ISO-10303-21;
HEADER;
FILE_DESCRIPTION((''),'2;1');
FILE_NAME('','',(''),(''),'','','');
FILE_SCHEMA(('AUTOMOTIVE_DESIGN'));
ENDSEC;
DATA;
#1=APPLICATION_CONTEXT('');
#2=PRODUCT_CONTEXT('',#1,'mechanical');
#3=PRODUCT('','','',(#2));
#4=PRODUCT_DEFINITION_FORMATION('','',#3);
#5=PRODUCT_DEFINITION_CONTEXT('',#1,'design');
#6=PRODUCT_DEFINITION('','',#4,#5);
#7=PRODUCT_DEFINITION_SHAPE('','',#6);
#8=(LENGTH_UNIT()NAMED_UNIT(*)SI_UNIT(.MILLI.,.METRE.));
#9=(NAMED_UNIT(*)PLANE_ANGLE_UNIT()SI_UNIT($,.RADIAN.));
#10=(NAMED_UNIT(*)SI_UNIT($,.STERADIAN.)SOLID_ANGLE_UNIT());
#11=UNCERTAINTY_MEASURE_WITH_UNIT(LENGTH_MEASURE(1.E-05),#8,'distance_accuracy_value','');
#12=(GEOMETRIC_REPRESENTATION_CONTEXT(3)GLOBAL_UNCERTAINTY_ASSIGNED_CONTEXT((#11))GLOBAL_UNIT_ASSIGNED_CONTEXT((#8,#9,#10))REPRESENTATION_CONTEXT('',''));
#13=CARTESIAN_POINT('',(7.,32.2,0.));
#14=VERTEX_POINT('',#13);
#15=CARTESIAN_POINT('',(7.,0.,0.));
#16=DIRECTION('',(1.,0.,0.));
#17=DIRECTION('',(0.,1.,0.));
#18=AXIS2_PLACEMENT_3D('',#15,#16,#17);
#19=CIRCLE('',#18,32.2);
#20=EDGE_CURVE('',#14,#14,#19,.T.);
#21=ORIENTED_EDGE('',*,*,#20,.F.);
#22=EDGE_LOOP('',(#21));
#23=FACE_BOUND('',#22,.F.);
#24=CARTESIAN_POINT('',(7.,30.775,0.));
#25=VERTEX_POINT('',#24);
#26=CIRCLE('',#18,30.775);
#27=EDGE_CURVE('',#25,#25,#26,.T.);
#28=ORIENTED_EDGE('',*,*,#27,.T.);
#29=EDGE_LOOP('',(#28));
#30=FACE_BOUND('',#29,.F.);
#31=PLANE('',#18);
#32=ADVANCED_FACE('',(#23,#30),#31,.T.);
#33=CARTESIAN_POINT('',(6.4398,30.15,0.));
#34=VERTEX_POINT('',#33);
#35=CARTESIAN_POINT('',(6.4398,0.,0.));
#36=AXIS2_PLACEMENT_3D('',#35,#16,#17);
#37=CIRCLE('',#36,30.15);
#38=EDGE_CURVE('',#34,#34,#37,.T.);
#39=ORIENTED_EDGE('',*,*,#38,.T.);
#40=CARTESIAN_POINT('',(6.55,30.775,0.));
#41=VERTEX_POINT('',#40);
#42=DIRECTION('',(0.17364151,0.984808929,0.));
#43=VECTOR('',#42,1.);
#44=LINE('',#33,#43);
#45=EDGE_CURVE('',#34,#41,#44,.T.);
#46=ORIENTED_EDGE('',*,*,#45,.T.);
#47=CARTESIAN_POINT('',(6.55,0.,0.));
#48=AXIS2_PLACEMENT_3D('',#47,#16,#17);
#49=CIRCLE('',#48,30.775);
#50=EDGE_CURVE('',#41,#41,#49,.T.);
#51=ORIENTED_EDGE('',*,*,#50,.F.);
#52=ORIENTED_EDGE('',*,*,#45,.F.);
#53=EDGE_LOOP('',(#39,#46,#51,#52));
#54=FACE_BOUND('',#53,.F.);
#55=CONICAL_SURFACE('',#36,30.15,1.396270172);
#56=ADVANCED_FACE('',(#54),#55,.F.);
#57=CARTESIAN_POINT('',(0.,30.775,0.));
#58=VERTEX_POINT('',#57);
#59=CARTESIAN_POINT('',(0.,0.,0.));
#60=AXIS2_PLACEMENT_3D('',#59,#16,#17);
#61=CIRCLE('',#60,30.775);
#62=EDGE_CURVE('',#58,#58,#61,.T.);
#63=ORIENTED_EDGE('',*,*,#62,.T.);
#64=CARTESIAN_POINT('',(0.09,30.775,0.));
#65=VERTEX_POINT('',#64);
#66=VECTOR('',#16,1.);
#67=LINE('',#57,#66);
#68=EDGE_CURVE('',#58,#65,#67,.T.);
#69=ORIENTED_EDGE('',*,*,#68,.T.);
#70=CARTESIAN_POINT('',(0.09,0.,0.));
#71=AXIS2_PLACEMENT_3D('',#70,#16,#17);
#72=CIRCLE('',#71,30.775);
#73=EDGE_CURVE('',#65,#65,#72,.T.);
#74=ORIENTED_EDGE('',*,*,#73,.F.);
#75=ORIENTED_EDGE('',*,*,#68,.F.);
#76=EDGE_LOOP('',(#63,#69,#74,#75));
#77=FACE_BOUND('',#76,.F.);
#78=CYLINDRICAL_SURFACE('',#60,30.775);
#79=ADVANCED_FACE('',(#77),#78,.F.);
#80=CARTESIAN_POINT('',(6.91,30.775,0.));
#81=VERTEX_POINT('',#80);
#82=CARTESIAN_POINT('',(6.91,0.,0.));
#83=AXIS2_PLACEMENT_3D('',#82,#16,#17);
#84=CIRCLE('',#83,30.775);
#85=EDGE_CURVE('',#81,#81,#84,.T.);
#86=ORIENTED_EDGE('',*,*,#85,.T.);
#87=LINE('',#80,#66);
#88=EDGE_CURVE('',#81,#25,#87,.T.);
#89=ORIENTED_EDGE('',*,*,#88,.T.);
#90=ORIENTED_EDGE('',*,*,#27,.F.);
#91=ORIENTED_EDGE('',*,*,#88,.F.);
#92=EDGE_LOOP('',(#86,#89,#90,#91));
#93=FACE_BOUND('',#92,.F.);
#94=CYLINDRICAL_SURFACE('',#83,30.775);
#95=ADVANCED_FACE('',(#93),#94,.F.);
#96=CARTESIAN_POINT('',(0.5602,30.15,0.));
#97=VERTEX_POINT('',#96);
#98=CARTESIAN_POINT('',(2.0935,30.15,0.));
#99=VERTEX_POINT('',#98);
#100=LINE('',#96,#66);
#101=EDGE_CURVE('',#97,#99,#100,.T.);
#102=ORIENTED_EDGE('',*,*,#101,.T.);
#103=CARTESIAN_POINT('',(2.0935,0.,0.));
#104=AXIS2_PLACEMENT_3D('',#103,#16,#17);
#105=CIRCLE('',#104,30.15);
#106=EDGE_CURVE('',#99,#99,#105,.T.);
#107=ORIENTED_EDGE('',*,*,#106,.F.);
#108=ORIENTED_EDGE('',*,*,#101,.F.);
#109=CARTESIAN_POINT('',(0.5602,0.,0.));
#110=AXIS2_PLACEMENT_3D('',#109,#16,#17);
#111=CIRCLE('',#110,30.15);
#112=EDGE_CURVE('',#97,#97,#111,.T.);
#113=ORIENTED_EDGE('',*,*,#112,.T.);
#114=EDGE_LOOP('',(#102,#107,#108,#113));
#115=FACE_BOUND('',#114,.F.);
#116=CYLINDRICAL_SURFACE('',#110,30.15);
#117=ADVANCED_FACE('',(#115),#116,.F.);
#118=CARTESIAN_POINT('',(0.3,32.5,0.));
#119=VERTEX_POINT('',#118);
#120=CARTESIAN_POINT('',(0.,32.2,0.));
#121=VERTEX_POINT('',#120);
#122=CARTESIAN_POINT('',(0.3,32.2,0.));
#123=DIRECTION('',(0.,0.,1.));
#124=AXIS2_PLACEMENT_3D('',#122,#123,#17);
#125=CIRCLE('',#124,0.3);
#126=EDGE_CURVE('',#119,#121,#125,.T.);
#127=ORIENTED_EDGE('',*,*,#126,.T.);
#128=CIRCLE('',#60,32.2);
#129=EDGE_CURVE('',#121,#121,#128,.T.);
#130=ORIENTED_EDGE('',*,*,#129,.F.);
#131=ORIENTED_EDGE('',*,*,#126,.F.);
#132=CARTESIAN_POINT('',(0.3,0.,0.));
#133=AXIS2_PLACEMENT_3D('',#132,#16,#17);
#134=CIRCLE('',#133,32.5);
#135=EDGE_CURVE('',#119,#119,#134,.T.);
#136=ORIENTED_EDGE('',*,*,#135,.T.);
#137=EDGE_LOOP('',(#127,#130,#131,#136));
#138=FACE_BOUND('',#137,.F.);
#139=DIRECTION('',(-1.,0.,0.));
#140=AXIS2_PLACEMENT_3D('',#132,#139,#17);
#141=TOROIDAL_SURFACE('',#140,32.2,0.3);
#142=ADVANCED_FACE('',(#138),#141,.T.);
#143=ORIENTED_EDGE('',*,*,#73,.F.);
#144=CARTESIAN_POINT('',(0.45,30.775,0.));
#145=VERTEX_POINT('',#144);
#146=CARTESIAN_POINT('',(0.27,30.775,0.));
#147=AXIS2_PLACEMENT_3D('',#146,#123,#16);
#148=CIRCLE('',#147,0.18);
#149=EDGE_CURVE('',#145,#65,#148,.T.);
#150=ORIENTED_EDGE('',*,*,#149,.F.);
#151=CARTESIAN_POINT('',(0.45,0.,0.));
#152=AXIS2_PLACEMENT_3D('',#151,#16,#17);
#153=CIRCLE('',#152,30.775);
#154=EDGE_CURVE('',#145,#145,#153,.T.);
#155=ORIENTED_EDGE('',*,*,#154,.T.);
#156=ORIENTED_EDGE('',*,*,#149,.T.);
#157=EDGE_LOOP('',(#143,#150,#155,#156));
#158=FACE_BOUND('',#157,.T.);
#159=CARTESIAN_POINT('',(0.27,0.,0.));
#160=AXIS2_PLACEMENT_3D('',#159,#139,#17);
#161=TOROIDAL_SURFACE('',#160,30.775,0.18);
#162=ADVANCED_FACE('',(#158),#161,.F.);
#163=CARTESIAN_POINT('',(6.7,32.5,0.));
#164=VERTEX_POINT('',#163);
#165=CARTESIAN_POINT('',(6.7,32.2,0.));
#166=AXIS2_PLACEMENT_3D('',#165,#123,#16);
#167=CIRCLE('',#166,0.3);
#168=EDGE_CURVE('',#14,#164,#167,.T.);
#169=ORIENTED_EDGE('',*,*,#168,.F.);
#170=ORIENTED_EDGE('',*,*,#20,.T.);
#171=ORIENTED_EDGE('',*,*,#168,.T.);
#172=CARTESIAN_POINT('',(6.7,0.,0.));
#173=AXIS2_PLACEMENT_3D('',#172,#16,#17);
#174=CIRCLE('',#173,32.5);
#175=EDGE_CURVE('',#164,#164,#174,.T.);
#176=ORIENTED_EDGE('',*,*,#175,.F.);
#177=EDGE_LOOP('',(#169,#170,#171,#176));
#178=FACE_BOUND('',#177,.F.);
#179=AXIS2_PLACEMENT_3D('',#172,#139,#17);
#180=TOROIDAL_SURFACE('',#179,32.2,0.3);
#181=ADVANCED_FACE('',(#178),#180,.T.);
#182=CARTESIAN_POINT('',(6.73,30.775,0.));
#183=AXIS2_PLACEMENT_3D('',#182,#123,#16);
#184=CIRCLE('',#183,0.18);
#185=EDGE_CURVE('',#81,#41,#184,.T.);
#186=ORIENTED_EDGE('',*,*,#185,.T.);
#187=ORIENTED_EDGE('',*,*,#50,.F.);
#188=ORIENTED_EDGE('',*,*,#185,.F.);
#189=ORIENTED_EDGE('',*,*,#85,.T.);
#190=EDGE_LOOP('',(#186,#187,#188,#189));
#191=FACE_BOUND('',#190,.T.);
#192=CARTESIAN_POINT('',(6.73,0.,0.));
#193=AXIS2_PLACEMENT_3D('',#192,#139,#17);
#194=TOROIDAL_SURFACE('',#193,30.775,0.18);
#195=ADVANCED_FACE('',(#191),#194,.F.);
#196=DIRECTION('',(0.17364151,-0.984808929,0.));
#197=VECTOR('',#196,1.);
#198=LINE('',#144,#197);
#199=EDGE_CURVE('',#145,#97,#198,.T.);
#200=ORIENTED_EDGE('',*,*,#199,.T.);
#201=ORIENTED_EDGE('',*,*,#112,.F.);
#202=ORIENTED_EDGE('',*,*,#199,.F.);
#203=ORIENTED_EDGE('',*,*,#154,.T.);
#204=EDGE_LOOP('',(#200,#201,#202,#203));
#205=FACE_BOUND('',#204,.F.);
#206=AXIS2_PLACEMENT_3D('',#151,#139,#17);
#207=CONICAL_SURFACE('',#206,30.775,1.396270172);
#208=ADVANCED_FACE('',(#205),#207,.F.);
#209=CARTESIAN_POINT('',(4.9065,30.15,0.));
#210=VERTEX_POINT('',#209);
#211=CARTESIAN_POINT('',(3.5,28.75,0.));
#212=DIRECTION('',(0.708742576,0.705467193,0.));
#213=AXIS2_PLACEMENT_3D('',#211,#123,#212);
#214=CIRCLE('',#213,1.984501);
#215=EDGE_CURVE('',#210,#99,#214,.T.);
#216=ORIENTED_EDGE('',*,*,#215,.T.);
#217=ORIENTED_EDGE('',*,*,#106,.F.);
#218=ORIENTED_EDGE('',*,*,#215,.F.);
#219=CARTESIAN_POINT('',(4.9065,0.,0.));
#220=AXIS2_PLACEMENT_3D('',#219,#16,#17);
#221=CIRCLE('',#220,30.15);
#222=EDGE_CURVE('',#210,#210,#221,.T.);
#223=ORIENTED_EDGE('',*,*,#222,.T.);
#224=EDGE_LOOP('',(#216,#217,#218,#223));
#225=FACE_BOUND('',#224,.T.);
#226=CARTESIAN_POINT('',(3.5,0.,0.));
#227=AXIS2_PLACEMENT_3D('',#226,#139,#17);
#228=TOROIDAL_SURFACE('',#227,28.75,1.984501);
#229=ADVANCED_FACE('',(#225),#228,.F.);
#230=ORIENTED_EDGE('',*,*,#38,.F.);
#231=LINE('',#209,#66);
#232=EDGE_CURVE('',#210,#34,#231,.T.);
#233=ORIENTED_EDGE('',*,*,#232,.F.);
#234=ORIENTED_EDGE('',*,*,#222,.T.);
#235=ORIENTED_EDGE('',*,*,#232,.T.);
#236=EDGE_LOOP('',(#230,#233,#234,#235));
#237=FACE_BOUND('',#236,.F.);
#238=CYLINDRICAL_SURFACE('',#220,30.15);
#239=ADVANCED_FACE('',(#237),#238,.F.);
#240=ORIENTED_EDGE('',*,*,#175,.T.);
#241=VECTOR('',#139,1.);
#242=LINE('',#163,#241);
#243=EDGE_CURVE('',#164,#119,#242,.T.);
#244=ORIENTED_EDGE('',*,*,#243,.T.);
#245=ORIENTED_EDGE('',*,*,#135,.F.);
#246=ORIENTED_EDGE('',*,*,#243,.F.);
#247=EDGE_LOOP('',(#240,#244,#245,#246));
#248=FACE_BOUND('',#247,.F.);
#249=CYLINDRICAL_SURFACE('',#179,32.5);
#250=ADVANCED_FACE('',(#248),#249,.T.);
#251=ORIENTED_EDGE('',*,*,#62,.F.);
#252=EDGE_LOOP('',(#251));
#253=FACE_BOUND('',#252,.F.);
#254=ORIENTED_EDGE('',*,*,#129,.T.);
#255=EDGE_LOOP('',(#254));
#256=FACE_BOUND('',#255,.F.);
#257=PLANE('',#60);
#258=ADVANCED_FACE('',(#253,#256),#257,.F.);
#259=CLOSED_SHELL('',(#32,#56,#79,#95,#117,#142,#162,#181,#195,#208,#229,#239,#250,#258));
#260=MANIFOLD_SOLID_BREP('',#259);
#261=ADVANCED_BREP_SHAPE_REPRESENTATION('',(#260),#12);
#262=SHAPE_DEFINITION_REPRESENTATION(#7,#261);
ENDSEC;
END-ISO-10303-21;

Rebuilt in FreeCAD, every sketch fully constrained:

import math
import FreeCAD as App
import Part
import Sketcher
Q = App.Units.Quantity

doc = App.newDocument("Part")
params = doc.addObject("Spreadsheet::Sheet", "Params")
for row, (alias, value) in enumerate([
    ("sketch1_radius", "0.3 mm"),
    ("sketch1_radius2", "0.18 mm"),
    ("sketch1_width", "6.4 mm"),
    ("sketch1_width2", "0.09 mm"),
    ("revolution_angle", "360 deg"),
], start=1):
    params.set(f"A{row}", alias)
    params.set(f"B{row}", "=" + value)
    params.setAlias(f"B{row}", alias)

body = doc.addObject("PartDesign::Body", "Body")

# Sketch on XY plane
sketch1 = doc.addObject("Sketcher::SketchObject", "Sketch")
body.addObject(sketch1)
sketch1.AttachmentSupport = (doc.XY_Plane, [""])
sketch1.MapMode = "FlatFace"
sketch1.addGeometry(Part.LineSegment(App.Vector(0, 32.2, 0), App.Vector(0, 30.775, 0)), False)
sketch1.addGeometry(Part.LineSegment(App.Vector(0, 30.775, 0), App.Vector(0.09, 30.775, 0)), False)
sketch1.addGeometry(Part.ArcOfCircle(Part.Circle(App.Vector(0.27, 30.775, 0), App.Vector(0, 0, 1), 0.18), math.radians(0), math.radians(180)), False)
sketch1.addGeometry(Part.LineSegment(App.Vector(0.45, 30.775, 0), App.Vector(0.5602, 30.15, 0)), False)
sketch1.addGeometry(Part.LineSegment(App.Vector(0.5602, 30.15, 0), App.Vector(2.0935, 30.15, 0)), False)
sketch1.addGeometry(Part.ArcOfCircle(Part.Circle(App.Vector(3.5, 28.75, 0), App.Vector(0, 0, 1), 1.984501), math.radians(44.8673), math.radians(135.1327)), False)
sketch1.addGeometry(Part.LineSegment(App.Vector(4.9065, 30.15, 0), App.Vector(6.4398, 30.15, 0)), False)
sketch1.addGeometry(Part.LineSegment(App.Vector(6.4398, 30.15, 0), App.Vector(6.55, 30.775, 0)), False)
sketch1.addGeometry(Part.ArcOfCircle(Part.Circle(App.Vector(6.73, 30.775, 0), App.Vector(0, 0, 1), 0.18), math.radians(0), math.radians(180)), False)
sketch1.addGeometry(Part.LineSegment(App.Vector(6.91, 30.775, 0), App.Vector(7, 30.775, 0)), False)
sketch1.addGeometry(Part.LineSegment(App.Vector(7, 30.775, 0), App.Vector(7, 32.2, 0)), False)
sketch1.addGeometry(Part.ArcOfCircle(Part.Circle(App.Vector(6.7, 32.2, 0), App.Vector(0, 0, 1), 0.3), math.radians(0), math.radians(90)), False)
sketch1.addGeometry(Part.LineSegment(App.Vector(6.7, 32.5, 0), App.Vector(0.3, 32.5, 0)), False)
sketch1.addGeometry(Part.ArcOfCircle(Part.Circle(App.Vector(0.3, 32.2, 0), App.Vector(0, 0, 1), 0.3), math.radians(90), math.radians(180)), False)
sketch1.addConstraint(Sketcher.Constraint("Coincident", 0, 2, 1, 1))
sketch1.addConstraint(Sketcher.Constraint("Coincident", 1, 2, 2, 2))
sketch1.addConstraint(Sketcher.Constraint("Coincident", 2, 1, 3, 1))
sketch1.addConstraint(Sketcher.Constraint("Coincident", 3, 2, 4, 1))
sketch1.addConstraint(Sketcher.Constraint("Coincident", 4, 2, 5, 2))
sketch1.addConstraint(Sketcher.Constraint("Coincident", 5, 1, 6, 1))
sketch1.addConstraint(Sketcher.Constraint("Coincident", 6, 2, 7, 1))
sketch1.addConstraint(Sketcher.Constraint("Coincident", 7, 2, 8, 2))
sketch1.addConstraint(Sketcher.Constraint("Coincident", 8, 1, 9, 1))
sketch1.addConstraint(Sketcher.Constraint("Coincident", 9, 2, 10, 1))
sketch1.addConstraint(Sketcher.Constraint("Tangent", 10, 2, 11, 1))
sketch1.addConstraint(Sketcher.Constraint("Tangent", 11, 2, 12, 1))
sketch1.addConstraint(Sketcher.Constraint("Tangent", 12, 2, 13, 1))
sketch1.addConstraint(Sketcher.Constraint("Tangent", 13, 2, 0, 1))
sketch1.addConstraint(Sketcher.Constraint("Vertical", 0))
sketch1.addConstraint(Sketcher.Constraint("Horizontal", 1))
sketch1.addConstraint(Sketcher.Constraint("Horizontal", 4))
sketch1.addConstraint(Sketcher.Constraint("Horizontal", 6))
sketch1.addConstraint(Sketcher.Constraint("Horizontal", 9))
sketch1.addConstraint(Sketcher.Constraint("Vertical", 10))
sketch1.addConstraint(Sketcher.Constraint("Horizontal", 12))
sketch1.addConstraint(Sketcher.Constraint("Equal", 2, 8))
sketch1.addConstraint(Sketcher.Constraint("Equal", 11, 13))
sketch1.addConstraint(Sketcher.Constraint("PointOnObject", 0, 2, -2))
sketch1.addConstraint(Sketcher.Constraint("Horizontal", 2, 3, 8, 3))
sketch1.addConstraint(Sketcher.Constraint("Horizontal", 8, 3, 0, 2))
sketch1.addConstraint(Sketcher.Constraint("Horizontal", 1, 2, 2, 1))
sketch1.addConstraint(Sketcher.Constraint("Horizontal", 4, 2, 5, 1))
sketch1.addConstraint(Sketcher.Constraint("Horizontal", 2, 1, 7, 2))
sketch1.addConstraint(Sketcher.Constraint("Horizontal", 7, 2, 8, 1))
sketch1.addConstraint(Sketcher.Constraint("Equal", 4, 6))
sketch1.addConstraint(Sketcher.Constraint("Equal", 1, 9))
sketch1.addConstraint(Sketcher.Constraint("Equal", 3, 7))
sketch1.addConstraint(Sketcher.Constraint("Radius", 11, 0.3))
sketch1.addConstraint(Sketcher.Constraint("Angle", 3, Q("-80.0004 deg")))
sketch1.addConstraint(Sketcher.Constraint("Radius", 2, 0.18))
sketch1.addConstraint(Sketcher.Constraint("DistanceX", 12, 2, 12, 1, 6.4))
sketch1.addConstraint(Sketcher.Constraint("DistanceX", 1, 1, 1, 2, 0.09))
sketch1.addConstraint(Sketcher.Constraint("DistanceY", -1, 1, 11, 3, 32.2))
sketch1.addConstraint(Sketcher.Constraint("Radius", 5, 1.9845))
sketch1.addConstraint(Sketcher.Constraint("DistanceY", 5, 3, 4, 2, 1.4))
sketch1.addConstraint(Sketcher.Constraint("DistanceY", 0, 2, 0, 1, 1.425))
sketch1.addConstraint(Sketcher.Constraint("DistanceY", -1, 1, 5, 3, 28.75))
sketch1.setExpression("Constraints[33]", "Params.sketch1_radius")
sketch1.setExpression("Constraints[35]", "Params.sketch1_radius2")
sketch1.setExpression("Constraints[36]", "Params.sketch1_width")
sketch1.setExpression("Constraints[37]", "Params.sketch1_width2")
revolution = doc.addObject("PartDesign::Revolution", "Revolution")
body.addObject(revolution)
revolution.Profile = sketch1
revolution.ReferenceAxis = (sketch1, ["H_Axis"])
revolution.setExpression("Angle", "Params.revolution_angle")

doc.recompute()
